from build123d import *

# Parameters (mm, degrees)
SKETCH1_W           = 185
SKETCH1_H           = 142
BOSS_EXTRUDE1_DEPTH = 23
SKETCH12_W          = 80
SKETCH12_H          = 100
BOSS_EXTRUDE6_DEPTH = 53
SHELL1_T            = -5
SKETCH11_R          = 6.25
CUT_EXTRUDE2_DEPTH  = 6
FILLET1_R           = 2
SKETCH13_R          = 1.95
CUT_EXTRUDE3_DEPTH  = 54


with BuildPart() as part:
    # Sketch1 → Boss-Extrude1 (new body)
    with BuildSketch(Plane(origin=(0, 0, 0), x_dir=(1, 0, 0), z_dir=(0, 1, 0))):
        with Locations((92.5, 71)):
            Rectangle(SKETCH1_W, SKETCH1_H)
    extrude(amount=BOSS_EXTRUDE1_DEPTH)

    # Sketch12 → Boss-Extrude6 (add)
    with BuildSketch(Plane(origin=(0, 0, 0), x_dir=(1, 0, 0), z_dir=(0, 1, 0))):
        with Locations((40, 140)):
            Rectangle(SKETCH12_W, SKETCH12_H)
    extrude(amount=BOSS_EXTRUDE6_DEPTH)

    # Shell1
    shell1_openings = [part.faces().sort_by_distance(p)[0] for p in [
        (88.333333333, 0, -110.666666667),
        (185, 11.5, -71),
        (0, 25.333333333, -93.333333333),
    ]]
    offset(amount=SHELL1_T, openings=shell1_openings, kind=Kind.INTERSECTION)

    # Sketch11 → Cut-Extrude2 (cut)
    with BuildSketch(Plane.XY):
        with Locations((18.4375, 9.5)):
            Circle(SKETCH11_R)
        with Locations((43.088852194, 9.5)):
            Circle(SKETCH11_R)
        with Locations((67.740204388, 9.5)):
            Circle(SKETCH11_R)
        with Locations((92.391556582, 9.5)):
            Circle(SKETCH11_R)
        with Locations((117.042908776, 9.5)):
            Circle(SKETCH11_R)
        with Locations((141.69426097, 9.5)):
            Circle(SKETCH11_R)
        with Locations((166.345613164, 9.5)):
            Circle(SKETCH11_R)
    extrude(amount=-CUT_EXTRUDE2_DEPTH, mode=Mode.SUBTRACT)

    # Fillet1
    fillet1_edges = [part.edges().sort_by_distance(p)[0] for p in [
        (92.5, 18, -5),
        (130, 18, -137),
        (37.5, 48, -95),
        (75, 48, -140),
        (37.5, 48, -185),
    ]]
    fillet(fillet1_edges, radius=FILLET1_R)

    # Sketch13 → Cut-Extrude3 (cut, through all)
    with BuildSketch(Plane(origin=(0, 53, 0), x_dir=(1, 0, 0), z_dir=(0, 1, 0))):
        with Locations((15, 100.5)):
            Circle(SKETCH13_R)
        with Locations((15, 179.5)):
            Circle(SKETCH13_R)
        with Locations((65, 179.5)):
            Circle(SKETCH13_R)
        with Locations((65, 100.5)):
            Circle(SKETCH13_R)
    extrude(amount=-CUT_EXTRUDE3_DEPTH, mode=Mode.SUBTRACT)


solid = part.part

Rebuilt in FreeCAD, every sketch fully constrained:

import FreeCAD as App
import Part
import Sketcher
from FreeCAD import Vector


def edges_at(feature, points):
    """Names of the edges that pass closest to the given points."""
    edges = feature.Shape.Edges
    near = lambda p: min(range(len(edges)), key=lambda i: edges[i].distToShape(Part.Vertex(*p))[0])
    return sorted({f"Edge{near(p) + 1}" for p in points})


def faces_at(feature, points):
    """Names of the faces that lie closest to the given points."""
    faces = feature.Shape.Faces
    near = lambda p: min(range(len(faces)), key=lambda i: faces[i].distToShape(Part.Vertex(*p))[0])
    return sorted({f"Face{near(p) + 1}" for p in points})


def add_polygon(sketch, points):
    """Adds a closed chain of lines whose ends are joined by coincident constraints."""
    first, n = sketch.GeometryCount, len(points)
    for a, b in zip(points, points[1:] + points[:1]):
        sketch.addGeometry(Part.LineSegment(App.Vector(*a, 0), App.Vector(*b, 0)), False)
    for i in range(n):
        sketch.addConstraint(Sketcher.Constraint("Coincident", first + i, 2, first + (i + 1) % n, 1))

doc = App.newDocument("Part")
body = doc.addObject("PartDesign::Body", "Body")

# Sketch on XZ plane
sketch1 = body.newObject("Sketcher::SketchObject", "Sketch")
sketch1.AttachmentSupport = (doc.getObject("XZ_Plane"), [""])
sketch1.MapMode = "FlatFace"
add_polygon(sketch1, [(0, -142), (0, 0), (185, 0), (185, -142)])  # lines 0-3
sketch1.addConstraint([
    Sketcher.Constraint("Vertical", 0),
    Sketcher.Constraint("Horizontal", 1),
    Sketcher.Constraint("Vertical", 2),
    Sketcher.Constraint("Horizontal", 3),
    Sketcher.Constraint("Coincident", 0, 2, -1, 1),
    Sketcher.Constraint("DistanceX", 1, 1, 1, 2, 185.0),
    Sketcher.Constraint("DistanceY", 0, 1, 0, 2, 142.0),
])
pad1 = body.newObject("PartDesign::Pad", "Pad")
pad1.Profile = sketch1
pad1.Length = 23
pad1.Reversed = True

# Sketch on XZ plane
sketch2 = body.newObject("Sketcher::SketchObject", "Sketch001")
sketch2.AttachmentSupport = (doc.getObject("XZ_Plane"), [""])
sketch2.MapMode = "FlatFace"
add_polygon(sketch2, [(0, -190), (0, -90), (80, -90), (80, -190)])  # lines 0-3
sketch2.addConstraint([
    Sketcher.Constraint("Vertical", 0),
    Sketcher.Constraint("Horizontal", 1),
    Sketcher.Constraint("Vertical", 2),
    Sketcher.Constraint("Horizontal", 3),
    Sketcher.Constraint("PointOnObject", 0, 2, -2),
    Sketcher.Constraint("DistanceX", 1, 1, 1, 2, 80.0),
    Sketcher.Constraint("DistanceY", 0, 1, 0, 2, 100.0),
    Sketcher.Constraint("DistanceY", 0, 2, -1, 1, 90.0),
])
pad2 = body.newObject("PartDesign::Pad", "Pad001")
pad2.Profile = sketch2
pad2.Length = 53
pad2.Reversed = True
doc.recompute()

thickness = body.newObject("PartDesign::Thickness", "Thickness")
thickness.Base = (pad2, faces_at(pad2, [(92.5, 0, -95), (185, 11.5, -71), (0, 26.5, -95)]))
thickness.Value = 5
thickness.Reversed = True
thickness.Join = "Intersection"

# Sketch on XY plane
sketch3 = body.newObject("Sketcher::SketchObject", "Sketch002")
sketch3.AttachmentSupport = (doc.getObject("XY_Plane"), [""])
sketch3.MapMode = "FlatFace"
sketch3.addGeometry([
    Part.Circle(Vector(18, 10, 0), Vector(0, 0, 1), 6),  # 0
    Part.Circle(Vector(43, 10, 0), Vector(0, 0, 1), 6),  # 1
    Part.Circle(Vector(68, 10, 0), Vector(0, 0, 1), 6),  # 2
    Part.Circle(Vector(92, 10, 0), Vector(0, 0, 1), 6),  # 3
    Part.Circle(Vector(117, 10, 0), Vector(0, 0, 1), 6),  # 4
    Part.Circle(Vector(142, 10, 0), Vector(0, 0, 1), 6),  # 5
    Part.Circle(Vector(166, 10, 0), Vector(0, 0, 1), 6),  # 6
], False)
sketch3.addConstraint([
    Sketcher.Constraint("Equal", 0, 1),
    Sketcher.Constraint("Equal", 1, 2),
    Sketcher.Constraint("Equal", 2, 3),
    Sketcher.Constraint("Equal", 3, 4),
    Sketcher.Constraint("Equal", 4, 5),
    Sketcher.Constraint("Equal", 5, 6),
    Sketcher.Constraint("Horizontal", 0, 3, 1, 3),
    Sketcher.Constraint("Horizontal", 1, 3, 2, 3),
    Sketcher.Constraint("Horizontal", 2, 3, 3, 3),
    Sketcher.Constraint("Horizontal", 3, 3, 4, 3),
    Sketcher.Constraint("Horizontal", 4, 3, 5, 3),
    Sketcher.Constraint("Horizontal", 5, 3, 6, 3),
    Sketcher.Constraint("Diameter", 0, 12.5),
    Sketcher.Constraint("DistanceY", -1, 1, 0, 3, 9.5),
    Sketcher.Constraint("DistanceX", -1, 1, 0, 3, 18.4375),
    Sketcher.Constraint("DistanceX", -1, 1, 4, 3, 117.042909),
    Sketcher.Constraint("DistanceX", -1, 1, 5, 3, 141.694261),
    Sketcher.Constraint("DistanceX", 1, 3, 5, 3, 98.605409),
    Sketcher.Constraint("DistanceX", 2, 3, 6, 3, 98.605409),
    Sketcher.Constraint("DistanceX", 1, 3, 6, 3, 123.256761),
    Sketcher.Constraint("DistanceX", -1, 1, 3, 3, 92.391557),
])
pocket1 = body.newObject("PartDesign::Pocket", "Pocket")
pocket1.Profile = sketch3
pocket1.Length = 6
doc.recompute()

fillet = body.newObject("PartDesign::Fillet", "Fillet")
fillet.Base = (pocket1, edges_at(pocket1, [
    (92.5, 18, -5),
    (130, 18, -137),
    (37.5, 48, -95),
    (75, 48, -140),
    (37.5, 48, -185),
]))
fillet.Radius = 2

# Sketch on XZ plane
sketch4 = body.newObject("Sketcher::SketchObject", "Sketch003")
sketch4.AttachmentSupport = (doc.getObject("XZ_Plane"), [""])
sketch4.MapMode = "FlatFace"
sketch4.AttachmentOffset = App.Placement(Vector(0, 0, -53), App.Rotation())
sketch4.addGeometry([
    Part.Circle(Vector(15, -100.5, 0), Vector(0, 0, 1), 1.9),
    Part.Circle(Vector(15, -179.5, 0), Vector(0, 0, 1), 1.9),
    Part.Circle(Vector(65, -179.5, 0), Vector(0, 0, 1), 1.9),
    Part.Circle(Vector(65, -100.5, 0), Vector(0, 0, 1), 1.9),
], False)
sketch4.addConstraint([
    Sketcher.Constraint("Equal", 0, 1),
    Sketcher.Constraint("Equal", 1, 2),
    Sketcher.Constraint("Equal", 2, 3),
    Sketcher.Constraint("Horizontal", 1, 3, 2, 3),
    Sketcher.Constraint("Horizontal", 0, 3, 3, 3),
    Sketcher.Constraint("Vertical", 0, 3, 1, 3),
    Sketcher.Constraint("Vertical", 2, 3, 3, 3),
    Sketcher.Constraint("Diameter", 0, 3.9),
    Sketcher.Constraint("DistanceX", -1, 1, 0, 3, 15.0),
    Sketcher.Constraint("DistanceX", -1, 1, 2, 3, 65.0),
    Sketcher.Constraint("DistanceY", 1, 3, 0, 3, 79.0),
    Sketcher.Constraint("DistanceY", 0, 3, -1, 1, 100.5),
])
pocket2 = body.newObject("PartDesign::Pocket", "Pocket001")
pocket2.Profile = sketch4
pocket2.Type = "ThroughAll"
pocket2.Reversed = True

doc.recompute()
